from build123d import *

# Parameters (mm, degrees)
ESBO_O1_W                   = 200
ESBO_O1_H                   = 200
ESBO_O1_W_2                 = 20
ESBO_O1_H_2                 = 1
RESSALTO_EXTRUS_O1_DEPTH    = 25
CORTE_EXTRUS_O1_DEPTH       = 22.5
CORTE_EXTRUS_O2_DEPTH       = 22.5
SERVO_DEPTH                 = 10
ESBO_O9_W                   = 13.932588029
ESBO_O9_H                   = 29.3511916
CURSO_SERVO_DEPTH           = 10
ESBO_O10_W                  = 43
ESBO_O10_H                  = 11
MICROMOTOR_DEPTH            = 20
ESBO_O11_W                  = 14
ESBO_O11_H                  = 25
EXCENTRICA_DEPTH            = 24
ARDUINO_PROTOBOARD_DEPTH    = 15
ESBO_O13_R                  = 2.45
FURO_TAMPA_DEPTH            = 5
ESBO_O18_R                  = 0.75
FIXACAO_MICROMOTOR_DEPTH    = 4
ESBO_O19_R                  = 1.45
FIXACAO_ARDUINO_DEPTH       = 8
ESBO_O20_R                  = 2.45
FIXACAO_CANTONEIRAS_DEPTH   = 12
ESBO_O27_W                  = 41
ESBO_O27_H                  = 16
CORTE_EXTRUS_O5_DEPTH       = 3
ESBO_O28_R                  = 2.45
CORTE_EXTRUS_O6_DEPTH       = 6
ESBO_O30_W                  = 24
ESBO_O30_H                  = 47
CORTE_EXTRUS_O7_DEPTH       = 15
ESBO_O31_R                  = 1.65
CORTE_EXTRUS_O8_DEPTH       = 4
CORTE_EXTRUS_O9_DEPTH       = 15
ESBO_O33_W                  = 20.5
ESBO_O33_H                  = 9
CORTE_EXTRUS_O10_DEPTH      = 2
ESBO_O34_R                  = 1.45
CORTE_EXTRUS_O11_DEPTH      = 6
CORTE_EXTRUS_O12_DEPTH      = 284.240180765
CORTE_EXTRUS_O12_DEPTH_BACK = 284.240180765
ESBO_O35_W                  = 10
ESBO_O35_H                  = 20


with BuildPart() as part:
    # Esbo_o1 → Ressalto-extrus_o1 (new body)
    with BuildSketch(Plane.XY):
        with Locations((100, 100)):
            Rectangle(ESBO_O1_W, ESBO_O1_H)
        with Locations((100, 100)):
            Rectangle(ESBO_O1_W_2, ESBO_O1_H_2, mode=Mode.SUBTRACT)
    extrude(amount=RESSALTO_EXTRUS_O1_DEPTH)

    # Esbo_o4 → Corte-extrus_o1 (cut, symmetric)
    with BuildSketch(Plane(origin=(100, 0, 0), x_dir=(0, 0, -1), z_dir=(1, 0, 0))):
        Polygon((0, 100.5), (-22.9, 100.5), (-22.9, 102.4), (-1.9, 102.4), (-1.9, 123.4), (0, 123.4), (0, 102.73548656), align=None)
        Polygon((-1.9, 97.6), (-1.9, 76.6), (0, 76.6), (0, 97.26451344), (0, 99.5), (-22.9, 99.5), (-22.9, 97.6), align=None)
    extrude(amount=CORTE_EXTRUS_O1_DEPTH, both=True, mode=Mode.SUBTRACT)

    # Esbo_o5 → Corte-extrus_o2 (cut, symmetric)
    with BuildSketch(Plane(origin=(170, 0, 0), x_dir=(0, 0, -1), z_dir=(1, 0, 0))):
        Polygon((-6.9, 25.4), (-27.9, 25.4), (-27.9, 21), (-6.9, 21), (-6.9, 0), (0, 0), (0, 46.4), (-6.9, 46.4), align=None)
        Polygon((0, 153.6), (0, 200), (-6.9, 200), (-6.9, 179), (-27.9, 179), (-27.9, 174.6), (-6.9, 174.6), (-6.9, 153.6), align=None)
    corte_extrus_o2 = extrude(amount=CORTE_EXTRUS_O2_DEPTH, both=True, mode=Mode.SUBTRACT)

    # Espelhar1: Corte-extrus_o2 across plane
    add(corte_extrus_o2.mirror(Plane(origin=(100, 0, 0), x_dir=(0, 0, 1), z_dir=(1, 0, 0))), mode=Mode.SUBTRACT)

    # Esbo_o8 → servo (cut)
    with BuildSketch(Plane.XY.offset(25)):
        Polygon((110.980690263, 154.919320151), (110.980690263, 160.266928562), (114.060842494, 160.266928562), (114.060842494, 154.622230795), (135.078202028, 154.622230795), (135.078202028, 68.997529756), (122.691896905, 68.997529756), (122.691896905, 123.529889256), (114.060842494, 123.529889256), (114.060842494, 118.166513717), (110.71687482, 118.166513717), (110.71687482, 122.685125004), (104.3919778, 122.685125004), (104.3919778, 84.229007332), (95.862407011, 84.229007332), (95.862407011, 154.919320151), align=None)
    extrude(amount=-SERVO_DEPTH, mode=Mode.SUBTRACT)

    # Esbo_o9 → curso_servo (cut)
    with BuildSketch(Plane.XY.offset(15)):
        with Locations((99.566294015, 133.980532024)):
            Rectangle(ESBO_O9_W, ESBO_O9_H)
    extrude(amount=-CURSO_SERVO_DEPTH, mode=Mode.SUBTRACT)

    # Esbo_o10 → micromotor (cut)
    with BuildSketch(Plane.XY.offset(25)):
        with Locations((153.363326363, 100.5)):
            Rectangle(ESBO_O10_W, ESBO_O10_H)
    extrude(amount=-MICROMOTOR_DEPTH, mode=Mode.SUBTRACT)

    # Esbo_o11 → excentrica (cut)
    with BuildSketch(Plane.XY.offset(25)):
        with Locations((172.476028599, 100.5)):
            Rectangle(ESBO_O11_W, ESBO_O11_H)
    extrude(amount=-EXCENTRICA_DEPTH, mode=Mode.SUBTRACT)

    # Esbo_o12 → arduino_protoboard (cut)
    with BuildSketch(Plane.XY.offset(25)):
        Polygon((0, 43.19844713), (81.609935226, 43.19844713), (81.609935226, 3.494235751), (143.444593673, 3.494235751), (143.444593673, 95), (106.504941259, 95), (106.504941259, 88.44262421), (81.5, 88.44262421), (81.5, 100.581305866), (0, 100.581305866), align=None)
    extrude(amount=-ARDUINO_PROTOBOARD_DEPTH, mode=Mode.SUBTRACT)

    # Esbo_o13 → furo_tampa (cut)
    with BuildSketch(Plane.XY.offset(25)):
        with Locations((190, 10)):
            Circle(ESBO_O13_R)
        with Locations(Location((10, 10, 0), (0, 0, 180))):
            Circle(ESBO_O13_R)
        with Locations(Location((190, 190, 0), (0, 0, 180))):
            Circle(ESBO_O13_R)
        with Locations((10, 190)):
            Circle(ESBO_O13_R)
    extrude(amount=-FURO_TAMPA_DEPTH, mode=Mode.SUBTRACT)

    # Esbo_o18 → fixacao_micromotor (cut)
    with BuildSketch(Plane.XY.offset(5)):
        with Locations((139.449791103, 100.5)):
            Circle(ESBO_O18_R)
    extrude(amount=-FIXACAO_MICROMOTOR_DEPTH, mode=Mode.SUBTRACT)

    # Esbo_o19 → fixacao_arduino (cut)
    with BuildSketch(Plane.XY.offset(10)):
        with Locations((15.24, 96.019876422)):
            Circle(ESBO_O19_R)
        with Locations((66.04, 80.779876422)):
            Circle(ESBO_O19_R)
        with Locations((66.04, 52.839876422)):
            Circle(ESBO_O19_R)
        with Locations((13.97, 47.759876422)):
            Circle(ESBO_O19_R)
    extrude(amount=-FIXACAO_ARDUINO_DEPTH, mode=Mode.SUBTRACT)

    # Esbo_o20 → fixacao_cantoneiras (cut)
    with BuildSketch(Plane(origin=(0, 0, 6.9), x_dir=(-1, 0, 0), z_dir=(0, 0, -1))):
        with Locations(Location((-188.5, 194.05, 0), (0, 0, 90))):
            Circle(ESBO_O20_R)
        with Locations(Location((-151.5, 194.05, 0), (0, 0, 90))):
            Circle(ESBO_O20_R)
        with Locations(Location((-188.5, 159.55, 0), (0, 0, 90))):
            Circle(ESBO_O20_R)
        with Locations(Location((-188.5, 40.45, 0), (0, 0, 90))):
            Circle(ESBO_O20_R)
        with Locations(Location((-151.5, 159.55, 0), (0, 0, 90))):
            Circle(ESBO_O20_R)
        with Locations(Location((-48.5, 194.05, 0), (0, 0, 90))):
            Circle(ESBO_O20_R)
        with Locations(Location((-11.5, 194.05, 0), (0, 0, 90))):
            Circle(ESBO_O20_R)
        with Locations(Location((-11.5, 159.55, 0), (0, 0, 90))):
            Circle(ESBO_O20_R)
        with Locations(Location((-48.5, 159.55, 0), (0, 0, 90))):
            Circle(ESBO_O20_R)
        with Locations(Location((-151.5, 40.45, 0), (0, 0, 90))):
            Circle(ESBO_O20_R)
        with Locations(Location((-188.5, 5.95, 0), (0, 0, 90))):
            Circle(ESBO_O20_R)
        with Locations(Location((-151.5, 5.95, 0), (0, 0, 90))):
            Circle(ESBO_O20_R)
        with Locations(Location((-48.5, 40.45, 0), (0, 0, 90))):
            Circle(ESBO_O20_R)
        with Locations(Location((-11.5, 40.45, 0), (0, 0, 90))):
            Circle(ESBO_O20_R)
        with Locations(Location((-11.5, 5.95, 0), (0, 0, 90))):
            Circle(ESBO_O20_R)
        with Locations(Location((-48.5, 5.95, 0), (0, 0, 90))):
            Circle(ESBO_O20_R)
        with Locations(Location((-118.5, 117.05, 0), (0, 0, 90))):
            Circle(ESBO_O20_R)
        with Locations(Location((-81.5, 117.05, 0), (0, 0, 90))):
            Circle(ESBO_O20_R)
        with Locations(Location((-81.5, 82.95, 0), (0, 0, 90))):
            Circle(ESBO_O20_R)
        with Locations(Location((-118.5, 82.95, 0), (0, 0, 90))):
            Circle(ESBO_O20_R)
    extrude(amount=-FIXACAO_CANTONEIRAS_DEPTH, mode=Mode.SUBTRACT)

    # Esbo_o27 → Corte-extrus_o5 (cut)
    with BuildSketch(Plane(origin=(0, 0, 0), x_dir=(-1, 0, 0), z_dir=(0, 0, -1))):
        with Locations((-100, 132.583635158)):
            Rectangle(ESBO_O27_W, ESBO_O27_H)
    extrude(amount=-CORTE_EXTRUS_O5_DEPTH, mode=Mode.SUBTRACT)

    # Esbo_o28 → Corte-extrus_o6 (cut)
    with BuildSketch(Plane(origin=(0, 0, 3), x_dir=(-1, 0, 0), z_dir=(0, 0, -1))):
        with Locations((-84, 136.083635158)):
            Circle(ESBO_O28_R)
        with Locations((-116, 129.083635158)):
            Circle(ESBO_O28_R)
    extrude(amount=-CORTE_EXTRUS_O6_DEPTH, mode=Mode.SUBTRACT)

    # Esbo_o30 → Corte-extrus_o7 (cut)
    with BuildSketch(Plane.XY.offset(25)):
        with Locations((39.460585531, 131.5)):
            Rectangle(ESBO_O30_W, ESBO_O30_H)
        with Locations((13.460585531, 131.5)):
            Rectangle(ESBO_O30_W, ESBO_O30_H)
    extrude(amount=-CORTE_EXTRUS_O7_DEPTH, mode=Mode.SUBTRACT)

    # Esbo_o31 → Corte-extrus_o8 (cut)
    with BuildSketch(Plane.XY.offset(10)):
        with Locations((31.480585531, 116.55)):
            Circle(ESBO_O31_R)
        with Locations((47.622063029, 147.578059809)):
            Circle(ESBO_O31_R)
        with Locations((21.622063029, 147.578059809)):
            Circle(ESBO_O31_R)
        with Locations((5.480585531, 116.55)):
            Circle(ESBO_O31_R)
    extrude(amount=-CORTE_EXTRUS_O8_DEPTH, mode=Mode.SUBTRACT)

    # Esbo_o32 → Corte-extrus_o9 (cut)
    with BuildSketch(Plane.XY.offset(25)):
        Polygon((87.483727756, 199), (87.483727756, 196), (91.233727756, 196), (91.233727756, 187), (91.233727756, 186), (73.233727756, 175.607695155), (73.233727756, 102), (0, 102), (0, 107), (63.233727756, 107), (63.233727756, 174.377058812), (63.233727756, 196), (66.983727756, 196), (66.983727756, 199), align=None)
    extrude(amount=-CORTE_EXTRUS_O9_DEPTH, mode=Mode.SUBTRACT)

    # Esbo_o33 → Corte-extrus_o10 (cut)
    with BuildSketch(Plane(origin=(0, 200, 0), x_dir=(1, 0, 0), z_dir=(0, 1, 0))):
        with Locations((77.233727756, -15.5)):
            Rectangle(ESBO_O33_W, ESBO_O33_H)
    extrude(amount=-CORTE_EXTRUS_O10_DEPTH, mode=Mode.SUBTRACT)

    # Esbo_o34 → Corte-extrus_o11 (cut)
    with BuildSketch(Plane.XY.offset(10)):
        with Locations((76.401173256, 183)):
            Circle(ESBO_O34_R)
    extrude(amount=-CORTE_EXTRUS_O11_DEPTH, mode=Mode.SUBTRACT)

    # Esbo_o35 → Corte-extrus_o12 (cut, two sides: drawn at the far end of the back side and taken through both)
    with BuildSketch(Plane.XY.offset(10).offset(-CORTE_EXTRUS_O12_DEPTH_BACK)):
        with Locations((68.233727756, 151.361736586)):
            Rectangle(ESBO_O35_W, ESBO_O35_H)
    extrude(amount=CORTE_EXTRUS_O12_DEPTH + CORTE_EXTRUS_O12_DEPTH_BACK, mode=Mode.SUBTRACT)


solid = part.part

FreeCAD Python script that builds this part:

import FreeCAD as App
import Part
import Sketcher

V = App.Vector
Q = App.Units.Quantity

doc = App.newDocument("Part")
body = doc.addObject("PartDesign::Body", "Body")

sketch1 = body.newObject("Sketcher::SketchObject", "Sketch")
sketch1.AttachmentSupport = (doc.getObject("XY_Plane"), [""])
sketch1.MapMode = "FlatFace"
sketch1.addGeometry([
    Part.LineSegment(V(0, 200, 0), V(0, 0, 0)),
    Part.LineSegment(V(0, 0, 0), V(200, 0, 0)),
    Part.LineSegment(V(200, 0, 0), V(200, 200, 0)),
    Part.LineSegment(V(200, 200, 0), V(0, 200, 0)),
    Part.LineSegment(V(110, 99.5, 0), V(90, 99.5, 0)),
    Part.LineSegment(V(90, 99.5, 0), V(90, 100.5, 0)),
    Part.LineSegment(V(90, 100.5, 0), V(110, 100.5, 0)),
    Part.LineSegment(V(110, 100.5, 0), V(110, 99.5, 0)),
], False)
sketch1.addConstraint([
    Sketcher.Constraint("Coincident", 0, 2, 1, 1),
    Sketcher.Constraint("Coincident", 1, 2, 2, 1),
    Sketcher.Constraint("Coincident", 2, 2, 3, 1),
    Sketcher.Constraint("Coincident", 3, 2, 0, 1),
    Sketcher.Constraint("Coincident", 4, 2, 5, 1),
    Sketcher.Constraint("Coincident", 5, 2, 6, 1),
    Sketcher.Constraint("Coincident", 6, 2, 7, 1),
    Sketcher.Constraint("Coincident", 7, 2, 4, 1),
    Sketcher.Constraint("Vertical", 0),
    Sketcher.Constraint("Horizontal", 1),
    Sketcher.Constraint("Vertical", 2),
    Sketcher.Constraint("Horizontal", 3),
    Sketcher.Constraint("Horizontal", 4),
    Sketcher.Constraint("Vertical", 5),
    Sketcher.Constraint("Horizontal", 6),
    Sketcher.Constraint("Vertical", 7),
    Sketcher.Constraint("Coincident", 0, 2, -1, 1),
    Sketcher.Constraint("Equal", 3, 0),
    Sketcher.Constraint("DistanceX", 1, 1, 1, 2, 200.0),
    Sketcher.Constraint("DistanceX", 4, 2, 4, 1, 20.0),
    Sketcher.Constraint("DistanceY", 5, 1, 5, 2, 1.0),
    Sketcher.Constraint("DistanceX", -1, 1, 4, 2, 90.0),
    Sketcher.Constraint("DistanceY", -1, 1, 4, 2, 99.5),
])
pad1 = body.newObject("PartDesign::Pad", "Pad")
pad1.Profile = sketch1
pad1.Length = 25

sketch2 = body.newObject("Sketcher::SketchObject", "Sketch001")
sketch2.AttachmentSupport = (doc.getObject("YZ_Plane"), [""])
sketch2.MapMode = "FlatFace"
sketch2.AttachmentOffset = App.Placement(V(0, 0, 100), App.Rotation())
sketch2.addGeometry([
    Part.LineSegment(V(100.5, 22.9, 0), V(100.5, 0, 0)),
    Part.LineSegment(V(100.5, 0, 0), V(123.4, 0, 0)),
    Part.LineSegment(V(123.4, 0, 0), V(123.4, 1.9, 0)),
    Part.LineSegment(V(123.4, 1.9, 0), V(102.4, 1.9, 0)),
    Part.LineSegment(V(102.4, 1.9, 0), V(102.4, 22.9, 0)),
    Part.LineSegment(V(102.4, 22.9, 0), V(100.5, 22.9, 0)),
    Part.LineSegment(V(97.6, 1.9, 0), V(76.6, 1.9, 0)),
    Part.LineSegment(V(76.6, 1.9, 0), V(76.6, 0, 0)),
    Part.LineSegment(V(76.6, 0, 0), V(99.5, 0, 0)),
    Part.LineSegment(V(99.5, 0, 0), V(99.5, 22.9, 0)),
    Part.LineSegment(V(99.5, 22.9, 0), V(97.6, 22.9, 0)),
    Part.LineSegment(V(97.6, 22.9, 0), V(97.6, 1.9, 0)),
], False)
sketch2.addConstraint([
    Sketcher.Constraint("Coincident", 0, 2, 1, 1),
    Sketcher.Constraint("Coincident", 1, 2, 2, 1),
    Sketcher.Constraint("Coincident", 2, 2, 3, 1),
    Sketcher.Constraint("Coincident", 3, 2, 4, 1),
    Sketcher.Constraint("Coincident", 4, 2, 5, 1),
    Sketcher.Constraint("Coincident", 5, 2, 0, 1),
    Sketcher.Constraint("Coincident", 6, 2, 7, 1),
    Sketcher.Constraint("Coincident", 7, 2, 8, 1),
    Sketcher.Constraint("Coincident", 8, 2, 9, 1),
    Sketcher.Constraint("Coincident", 9, 2, 10, 1),
    Sketcher.Constraint("Coincident", 10, 2, 11, 1),
    Sketcher.Constraint("Coincident", 11, 2, 6, 1),
    Sketcher.Constraint("Vertical", 0),
    Sketcher.Constraint("Horizontal", 1),
    Sketcher.Constraint("Vertical", 2),
    Sketcher.Constraint("Horizontal", 3),
    Sketcher.Constraint("Vertical", 4),
    Sketcher.Constraint("Horizontal", 5),
    Sketcher.Constraint("Horizontal", 6),
    Sketcher.Constraint("Vertical", 7),
    Sketcher.Constraint("Horizontal", 8),
    Sketcher.Constraint("Vertical", 9),
    Sketcher.Constraint("Horizontal", 10),
    Sketcher.Constraint("Vertical", 11),
    Sketcher.Constraint("PointOnObject", 0, 2, -1),
    Sketcher.Constraint("PointOnObject", 7, 2, -1),
    Sketcher.Constraint("Horizontal", 3, 2, 6, 2),
    Sketcher.Constraint("Horizontal", 5, 2, 9, 2),
    Sketcher.Constraint("Equal", 3, 6),
    Sketcher.Constraint("Equal", 1, 8),
    Sketcher.Constraint("Equal", 8, 0),
    Sketcher.Constraint("Equal", 10, 2),
    Sketcher.Constraint("DistanceX", 3, 2, 3, 1, 21.0),
    Sketcher.Constraint("DistanceX", 1, 1, 1, 2, 22.9),
    Sketcher.Constraint("DistanceX", 8, 2, 0, 2, 1.0),
    Sketcher.Constraint("DistanceX", -1, 1, 0, 2, 100.5),
])
pocket1 = body.newObject("PartDesign::Pocket", "Pocket")
pocket1.Profile = sketch2
pocket1.Length = 45
pocket1.Midplane = True

sketch3 = body.newObject("Sketcher::SketchObject", "Sketch002")
sketch3.AttachmentSupport = (doc.getObject("YZ_Plane"), [""])
sketch3.MapMode = "FlatFace"
sketch3.AttachmentOffset = App.Placement(V(0, 0, 170), App.Rotation())
sketch3.addGeometry([
    Part.LineSegment(V(25.4, 6.9, 0), V(25.4, 27.9, 0)),
    Part.LineSegment(V(25.4, 27.9, 0), V(21, 27.9, 0)),
    Part.LineSegment(V(21, 27.9, 0), V(21, 6.9, 0)),
    Part.LineSegment(V(21, 6.9, 0), V(0, 6.9, 0)),
    Part.LineSegment(V(0, 6.9, 0), V(0, 0, 0)),
    Part.LineSegment(V(0, 0, 0), V(46.4, 0, 0)),
    Part.LineSegment(V(46.4, 0, 0), V(46.4, 6.9, 0)),
    Part.LineSegment(V(46.4, 6.9, 0), V(25.4, 6.9, 0)),
    Part.LineSegment(V(153.6, 0, 0), V(200, 0, 0)),
    Part.LineSegment(V(200, 0, 0), V(200, 6.9, 0)),
    Part.LineSegment(V(200, 6.9, 0), V(179, 6.9, 0)),
    Part.LineSegment(V(179, 6.9, 0), V(179, 27.9, 0)),
    Part.LineSegment(V(179, 27.9, 0), V(174.6, 27.9, 0)),
    Part.LineSegment(V(174.6, 27.9, 0), V(174.6, 6.9, 0)),
    Part.LineSegment(V(174.6, 6.9, 0), V(153.6, 6.9, 0)),
    Part.LineSegment(V(153.6, 6.9, 0), V(153.6, 0, 0)),
], False)
sketch3.addConstraint([
    Sketcher.Constraint("Coincident", 0, 2, 1, 1),
    Sketcher.Constraint("Coincident", 1, 2, 2, 1),
    Sketcher.Constraint("Coincident", 2, 2, 3, 1),
    Sketcher.Constraint("Coincident", 3, 2, 4, 1),
    Sketcher.Constraint("Coincident", 4, 2, 5, 1),
    Sketcher.Constraint("Coincident", 5, 2, 6, 1),
    Sketcher.Constraint("Coincident", 6, 2, 7, 1),
    Sketcher.Constraint("Coincident", 7, 2, 0, 1),
    Sketcher.Constraint("Coincident", 8, 2, 9, 1),
    Sketcher.Constraint("Coincident", 9, 2, 10, 1),
    Sketcher.Constraint("Coincident", 10, 2, 11, 1),
    Sketcher.Constraint("Coincident", 11, 2, 12, 1),
    Sketcher.Constraint("Coincident", 12, 2, 13, 1),
    Sketcher.Constraint("Coincident", 13, 2, 14, 1),
    Sketcher.Constraint("Coincident", 14, 2, 15, 1),
    Sketcher.Constraint("Coincident", 15, 2, 8, 1),
    Sketcher.Constraint("Vertical", 0),
    Sketcher.Constraint("Horizontal", 1),
    Sketcher.Constraint("Vertical", 2),
    Sketcher.Constraint("Horizontal", 3),
    Sketcher.Constraint("Vertical", 4),
    Sketcher.Constraint("Horizontal", 5),
    Sketcher.Constraint("Vertical", 6),
    Sketcher.Constraint("Horizontal", 7),
    Sketcher.Constraint("Horizontal", 8),
    Sketcher.Constraint("Vertical", 9),
    Sketcher.Constraint("Horizontal", 10),
    Sketcher.Constraint("Vertical", 11),
    Sketcher.Constraint("Horizontal", 12),
    Sketcher.Constraint("Vertical", 13),
    Sketcher.Constraint("Horizontal", 14),
    Sketcher.Constraint("Vertical", 15),
    Sketcher.Constraint("Coincident", 4, 2, -1, 1),
    Sketcher.Constraint("PointOnObject", 8, 2, -1),
    Sketcher.Constraint("Horizontal", 3, 2, 6, 2),
    Sketcher.Constraint("Horizontal", 7, 2, 9, 2),
    Sketcher.Constraint("Horizontal", 1, 2, 11, 2),
    Sketcher.Constraint("Horizontal", 10, 2, 13, 2),
    Sketcher.Constraint("Equal", 3, 7),
    Sketcher.Constraint("Equal", 5, 8),
    Sketcher.Constraint("Equal", 7, 10),
    Sketcher.Constraint("Equal", 1, 12),
    Sketcher.Constraint("Equal", 14, 0),
    Sketcher.Constraint("DistanceX", 3, 2, 3, 1, 21.0),
    Sketcher.Constraint("DistanceX", 1, 2, 1, 1, 4.4),
    Sketcher.Constraint("DistanceY", 4, 2, 4, 1, 6.9),
    Sketcher.Constraint("DistanceX", -1, 1, 8, 2, 200.0),
])
pocket2 = body.newObject("PartDesign::Pocket", "Pocket001")
pocket2.Profile = sketch3
pocket2.Length = 45
pocket2.Midplane = True
doc.recompute()

datumplane = body.newObject("PartDesign::Plane", "DatumPlane")
datumplane.AttachmentSupport = (doc.getObject("YZ_Plane"), [""])
datumplane.MapMode = "FlatFace"
datumplane.AttachmentOffset = App.Placement(V(0, 0, 100), App.Rotation())
mirrored = body.newObject("PartDesign::Mirrored", "Mirrored")
mirrored.Originals = [pocket2]
mirrored.MirrorPlane = (datumplane, [""])
body.Tip = mirrored

sketch4 = body.newObject("Sketcher::SketchObject", "Sketch003")
sketch4.AttachmentSupport = (doc.getObject("XY_Plane"), [""])
sketch4.MapMode = "FlatFace"
sketch4.AttachmentOffset = App.Placement(V(0, 0, 25), App.Rotation())
sketch4.addGeometry([
    Part.LineSegment(V(110.98069, 160.266929, 0), V(110.98069, 154.91932, 0)),
    Part.LineSegment(V(110.98069, 154.91932, 0), V(95.862407, 154.91932, 0)),
    Part.LineSegment(V(95.862407, 154.91932, 0), V(95.862407, 84.229007, 0)),
    Part.LineSegment(V(95.862407, 84.229007, 0), V(104.391978, 84.229007, 0)),
    Part.LineSegment(V(104.391978, 84.229007, 0), V(104.391978, 122.685125, 0)),
    Part.LineSegment(V(104.391978, 122.685125, 0), V(110.716875, 122.685125, 0)),
    Part.LineSegment(V(110.716875, 122.685125, 0), V(110.716875, 118.166514, 0)),
    Part.LineSegment(V(110.716875, 118.166514, 0), V(114.060842, 118.166514, 0)),
    Part.LineSegment(V(114.060842, 118.166514, 0), V(114.060842, 123.529889, 0)),
    Part.LineSegment(V(114.060842, 123.529889, 0), V(122.691897, 123.529889, 0)),
    Part.LineSegment(V(122.691897, 123.529889, 0), V(122.691897, 68.99753, 0)),
    Part.LineSegment(V(122.691897, 68.99753, 0), V(135.078202, 68.99753, 0)),
    Part.LineSegment(V(135.078202, 68.99753, 0), V(135.078202, 154.622231, 0)),
    Part.LineSegment(V(135.078202, 154.622231, 0), V(114.060842, 154.622231, 0)),
    Part.LineSegment(V(114.060842, 154.622231, 0), V(114.060842, 160.266929, 0)),
    Part.LineSegment(V(114.060842, 160.266929, 0), V(110.98069, 160.266929, 0)),
], False)
sketch4.addConstraint([
    Sketcher.Constraint("Coincident", 0, 2, 1, 1),
    Sketcher.Constraint("Coincident", 1, 2, 2, 1),
    Sketcher.Constraint("Coincident", 2, 2, 3, 1),
    Sketcher.Constraint("Coincident", 3, 2, 4, 1),
    Sketcher.Constraint("Coincident", 4, 2, 5, 1),
    Sketcher.Constraint("Coincident", 5, 2, 6, 1),
    Sketcher.Constraint("Coincident", 6, 2, 7, 1),
    Sketcher.Constraint("Coincident", 7, 2, 8, 1),
    Sketcher.Constraint("Coincident", 8, 2, 9, 1),
    Sketcher.Constraint("Coincident", 9, 2, 10, 1),
    Sketcher.Constraint("Coincident", 10, 2, 11, 1),
    Sketcher.Constraint("Coincident", 11, 2, 12, 1),
    Sketcher.Constraint("Coincident", 12, 2, 13, 1),
    Sketcher.Constraint("Coincident", 13, 2, 14, 1),
    Sketcher.Constraint("Coincident", 14, 2, 15, 1),
    Sketcher.Constraint("Coincident", 15, 2, 0, 1),
    Sketcher.Constraint("Vertical", 0),
    Sketcher.Constraint("Horizontal", 1),
    Sketcher.Constraint("Vertical", 2),
    Sketcher.Constraint("Horizontal", 3),
    Sketcher.Constraint("Vertical", 4),
    Sketcher.Constraint("Horizontal", 5),
    Sketcher.Constraint("Vertical", 6),
    Sketcher.Constraint("Horizontal", 7),
    Sketcher.Constraint("Vertical", 8),
    Sketcher.Constraint("Horizontal", 9),
    Sketcher.Constraint("Vertical", 10),
    Sketcher.Constraint("Horizontal", 11),
    Sketcher.Constraint("Vertical", 12),
    Sketcher.Constraint("Horizontal", 13),
    Sketcher.Constraint("Vertical", 14),
    Sketcher.Constraint("Horizontal", 15),
    Sketcher.Constraint("Vertical", 8, 2, 13, 2),
    Sketcher.Constraint("DistanceY", 12, 1, 12, 2, 85.624701),
    Sketcher.Constraint("DistanceX", 3, 1, 3, 2, 8.529571),
    Sketcher.Constraint("DistanceX", 13, 2, 13, 1, 21.01736),
    Sketcher.Constraint("DistanceY", 0, 2, 0, 1, 5.347608),
    Sketcher.Constraint("DistanceY", 6, 2, 6, 1, 4.518611),
    Sketcher.Constraint("DistanceY", 10, 2, 10, 1, 54.532359),
    Sketcher.Constraint("DistanceX", 1, 2, 1, 1, 15.118283),
    Sketcher.Constraint("DistanceX", 5, 1, 5, 2, 6.324897),
    Sketcher.Constraint("DistanceX", 7, 1, 7, 2, 3.343968),
    Sketcher.Constraint("DistanceX", 9, 1, 9, 2, 8.631054),
    Sketcher.Constraint("DistanceY", 2, 2, 2, 1, 70.690313),
    Sketcher.Constraint("DistanceY", 4, 1, 4, 2, 38.456118),
    Sketcher.Constraint("DistanceY", 8, 1, 8, 2, 5.363376),
    Sketcher.Constraint("DistanceX", -1, 1, 0, 2, 110.98069),
    Sketcher.Constraint("DistanceY", -1, 1, 0, 2, 154.91932),
])
pocket3 = body.newObject("PartDesign::Pocket", "Pocket002")
pocket3.Profile = sketch4
pocket3.Length = 10

sketch5 = body.newObject("Sketcher::SketchObject", "Sketch004")
sketch5.AttachmentSupport = (doc.getObject("XY_Plane"), [""])
sketch5.MapMode = "FlatFace"
sketch5.AttachmentOffset = App.Placement(V(0, 0, 15), App.Rotation())
sketch5.addGeometry([
    Part.LineSegment(V(92.6, 148.656128, 0), V(92.6, 119.304936, 0)),
    Part.LineSegment(V(92.6, 119.304936, 0), V(106.532588, 119.304936, 0)),
    Part.LineSegment(V(106.532588, 119.304936, 0), V(106.532588, 148.656128, 0)),
    Part.LineSegment(V(106.532588, 148.656128, 0), V(92.6, 148.656128, 0)),
], False)
sketch5.addConstraint([
    Sketcher.Constraint("Coincident", 0, 2, 1, 1),
    Sketcher.Constraint("Coincident", 1, 2, 2, 1),
    Sketcher.Constraint("Coincident", 2, 2, 3, 1),
    Sketcher.Constraint("Coincident", 3, 2, 0, 1),
    Sketcher.Constraint("Vertical", 0),
    Sketcher.Constraint("Horizontal", 1),
    Sketcher.Constraint("Vertical", 2),
    Sketcher.Constraint("Horizontal", 3),
    Sketcher.Constraint("DistanceX", -1, 1, 0, 2, 92.6),
    Sketcher.Constraint("DistanceX", 1, 1, 1, 2, 13.932588),
    Sketcher.Constraint("DistanceY", 0, 2, 0, 1, 29.351192),
    Sketcher.Constraint("DistanceY", -1, 1, 0, 2, 119.304936),
])
pocket4 = body.newObject("PartDesign::Pocket", "Pocket003")
pocket4.Profile = sketch5
pocket4.Length = 10

sketch6 = body.newObject("Sketcher::SketchObject", "Sketch005")
sketch6.AttachmentSupport = (doc.getObject("XY_Plane"), [""])
sketch6.MapMode = "FlatFace"
sketch6.AttachmentOffset = App.Placement(V(0, 0, 25), App.Rotation())
sketch6.addGeometry([
    Part.LineSegment(V(131.863326, 106, 0), V(131.863326, 95, 0)),
    Part.LineSegment(V(131.863326, 95, 0), V(174.863326, 95, 0)),
    Part.LineSegment(V(174.863326, 95, 0), V(174.863326, 106, 0)),
    Part.LineSegment(V(174.863326, 106, 0), V(131.863326, 106, 0)),
], False)
sketch6.addConstraint([
    Sketcher.Constraint("Coincident", 0, 2, 1, 1),
    Sketcher.Constraint("Coincident", 1, 2, 2, 1),
    Sketcher.Constraint("Coincident", 2, 2, 3, 1),
    Sketcher.Constraint("Coincident", 3, 2, 0, 1),
    Sketcher.Constraint("Vertical", 0),
    Sketcher.Constraint("Horizontal", 1),
    Sketcher.Constraint("Vertical", 2),
    Sketcher.Constraint("Horizontal", 3),
    Sketcher.Constraint("DistanceX", 1, 1, 1, 2, 43.0),
    Sketcher.Constraint("DistanceY", 0, 2, 0, 1, 11.0),
    Sketcher.Constraint("DistanceY", -1, 1, 0, 2, 95.0),
    Sketcher.Constraint("DistanceX", -1, 1, 0, 2, 131.863326),
])
pocket5 = body.newObject("PartDesign::Pocket", "Pocket004")
pocket5.Profile = sketch6
pocket5.Length = 20

sketch7 = body.newObject("Sketcher::SketchObject", "Sketch006")
sketch7.AttachmentSupport = (doc.getObject("XY_Plane"), [""])
sketch7.MapMode = "FlatFace"
sketch7.AttachmentOffset = App.Placement(V(0, 0, 25), App.Rotation())
sketch7.addGeometry([
    Part.LineSegment(V(165.476029, 113, 0), V(165.476029, 88, 0)),
    Part.LineSegment(V(165.476029, 88, 0), V(179.476029, 88, 0)),
    Part.LineSegment(V(179.476029, 88, 0), V(179.476029, 113, 0)),
    Part.LineSegment(V(179.476029, 113, 0), V(165.476029, 113, 0)),
], False)
sketch7.addConstraint([
    Sketcher.Constraint("Coincident", 0, 2, 1, 1),
    Sketcher.Constraint("Coincident", 1, 2, 2, 1),
    Sketcher.Constraint("Coincident", 2, 2, 3, 1),
    Sketcher.Constraint("Coincident", 3, 2, 0, 1),
    Sketcher.Constraint("Vertical", 0),
    Sketcher.Constraint("Horizontal", 1),
    Sketcher.Constraint("Vertical", 2),
    Sketcher.Constraint("Horizontal", 3),
    Sketcher.Constraint("DistanceX", 1, 1, 1, 2, 14.0),
    Sketcher.Constraint("DistanceY", 0, 2, 0, 1, 25.0),
    Sketcher.Constraint("DistanceY", -1, 1, 0, 2, 88.0),
    Sketcher.Constraint("DistanceX", -1, 1, 0, 2, 165.476029),
])
pocket6 = body.newObject("PartDesign::Pocket", "Pocket005")
pocket6.Profile = sketch7
pocket6.Length = 24

sketch8 = body.newObject("Sketcher::SketchObject", "Sketch007")
sketch8.AttachmentSupport = (doc.getObject("XY_Plane"), [""])
sketch8.MapMode = "FlatFace"
sketch8.AttachmentOffset = App.Placement(V(0, 0, 25), App.Rotation())
sketch8.addGeometry([
    Part.LineSegment(V(0, 43.198447, 0), V(81.609935, 43.198447, 0)),
    Part.LineSegment(V(81.609935, 43.198447, 0), V(81.609935, 3.494236, 0)),
    Part.LineSegment(V(81.609935, 3.494236, 0), V(143.444594, 3.494236, 0)),
    Part.LineSegment(V(143.444594, 3.494236, 0), V(143.444594, 95, 0)),
    Part.LineSegment(V(143.444594, 95, 0), V(106.504941, 95, 0)),
    Part.LineSegment(V(106.504941, 95, 0), V(106.504941, 88.442624, 0)),
    Part.LineSegment(V(106.504941, 88.442624, 0), V(81.5, 88.442624, 0)),
    Part.LineSegment(V(81.5, 88.442624, 0), V(81.5, 100.581306, 0)),
    Part.LineSegment(V(81.5, 100.581306, 0), V(0, 100.581306, 0)),
    Part.LineSegment(V(0, 100.581306, 0), V(0, 43.198447, 0)),
], False)
sketch8.addConstraint([
    Sketcher.Constraint("Coincident", 0, 2, 1, 1),
    Sketcher.Constraint("Coincident", 1, 2, 2, 1),
    Sketcher.Constraint("Coincident", 2, 2, 3, 1),
    Sketcher.Constraint("Coincident", 3, 2, 4, 1),
    Sketcher.Constraint("Coincident", 4, 2, 5, 1),
    Sketcher.Constraint("Coincident", 5, 2, 6, 1),
    Sketcher.Constraint("Coincident", 6, 2, 7, 1),
    Sketcher.Constraint("Coincident", 7, 2, 8, 1),
    Sketcher.Constraint("Coincident", 8, 2, 9, 1),
    Sketcher.Constraint("Coincident", 9, 2, 0, 1),
    Sketcher.Constraint("Horizontal", 0),
    Sketcher.Constraint("Vertical", 1),
    Sketcher.Constraint("Horizontal", 2),
    Sketcher.Constraint("Vertical", 3),
    Sketcher.Constraint("Horizontal", 4),
    Sketcher.Constraint("Vertical", 5),
    Sketcher.Constraint("Horizontal", 6),
    Sketcher.Constraint("Vertical", 7),
    Sketcher.Constraint("Horizontal", 8),
    Sketcher.Constraint("Vertical", 9),
    Sketcher.Constraint("PointOnObject", 8, 2, -2),
    Sketcher.Constraint("DistanceX", 8, 2, 8, 1, 81.5),
    Sketcher.Constraint("DistanceY", -1, 1, 3, 2, 95.0),
    Sketcher.Constraint("DistanceX", 2, 1, 2, 2, 61.834658),
    Sketcher.Constraint("DistanceX", 6, 2, 6, 1, 25.004941),
    Sketcher.Constraint("DistanceY", 1, 2, 1, 1, 39.704211),
    Sketcher.Constraint("DistanceY", 7, 1, 7, 2, 12.138682),
    Sketcher.Constraint("DistanceY", 9, 2, 9, 1, 57.382859),
    Sketcher.Constraint("DistanceX", 0, 1, 0, 2, 81.609935),
    Sketcher.Constraint("DistanceY", 3, 1, 3, 2, 91.505764),
])
pocket7 = body.newObject("PartDesign::Pocket", "Pocket006")
pocket7.Profile = sketch8
pocket7.Length = 15

sketch9 = body.newObject("Sketcher::SketchObject", "Sketch008")
sketch9.AttachmentSupport = (doc.getObject("XY_Plane"), [""])
sketch9.MapMode = "FlatFace"
sketch9.AttachmentOffset = App.Placement(V(0, 0, 25), App.Rotation())
sketch9.addGeometry([
    Part.Circle(V(190, 10, 0), V(0, 0, 1), 2.45),
    Part.Circle(V(10, 10, 0), V(0, 0, 1), 2.45),
    Part.Circle(V(190, 190, 0), V(0, 0, 1), 2.45),
    Part.Circle(V(10, 190, 0), V(0, 0, 1), 2.45),
], False)
sketch9.addConstraint([
    Sketcher.Constraint("Equal", 0, 1),
    Sketcher.Constraint("Equal", 1, 2),
    Sketcher.Constraint("Equal", 2, 3),
    Sketcher.Constraint("Horizontal", 0, 3, 1, 3),
    Sketcher.Constraint("Horizontal", 2, 3, 3, 3),
    Sketcher.Constraint("Vertical", 0, 3, 2, 3),
    Sketcher.Constraint("Vertical", 1, 3, 3, 3),
    Sketcher.Constraint("Diameter", 0, 4.9),
    Sketcher.Constraint("DistanceX", -1, 1, 0, 3, 190.0),
    Sketcher.Constraint("DistanceY", -1, 1, 0, 3, 10.0),
    Sketcher.Constraint("DistanceX", -1, 1, 1, 3, 10.0),
    Sketcher.Constraint("DistanceY", -1, 1, 2, 3, 190.0),
])
pocket8 = body.newObject("PartDesign::Pocket", "Pocket007")
pocket8.Profile = sketch9
pocket8.Length = 5

sketch10 = body.newObject("Sketcher::SketchObject", "Sketch009")
sketch10.AttachmentSupport = (doc.getObject("XY_Plane"), [""])
sketch10.MapMode = "FlatFace"
sketch10.AttachmentOffset = App.Placement(V(0, 0, 5), App.Rotation())
sketch10.addGeometry(Part.Circle(V(139.449791, 100.5, 0), V(0, 0, 1), 0.75), False)
sketch10.addConstraint([
    Sketcher.Constraint("Diameter", 0, 1.5),
    Sketcher.Constraint("DistanceY", -1, 1, 0, 3, 100.5),
    Sketcher.Constraint("DistanceX", -1, 1, 0, 3, 139.449791),
])
pocket9 = body.newObject("PartDesign::Pocket", "Pocket008")
pocket9.Profile = sketch10
pocket9.Length = 4

sketch11 = body.newObject("Sketcher::SketchObject", "Sketch010")
sketch11.AttachmentSupport = (doc.getObject("XY_Plane"), [""])
sketch11.MapMode = "FlatFace"
sketch11.AttachmentOffset = App.Placement(V(0, 0, 10), App.Rotation())
sketch11.addGeometry([
    Part.Circle(V(15.24, 96.019876, 0), V(0, 0, 1), 1.45),
    Part.Circle(V(66.04, 80.779876, 0), V(0, 0, 1), 1.45),
    Part.Circle(V(66.04, 52.839876, 0), V(0, 0, 1), 1.45),
    Part.Circle(V(13.97, 47.759876, 0), V(0, 0, 1), 1.45),
], False)
sketch11.addConstraint([
    Sketcher.Constraint("Equal", 0, 1),
    Sketcher.Constraint("Equal", 1, 2),
    Sketcher.Constraint("Equal", 2, 3),
    Sketcher.Constraint("Vertical", 1, 3, 2, 3),
    Sketcher.Constraint("Diameter", 0, 2.9),
    Sketcher.Constraint("DistanceX", 0, 3, 1, 3, 50.8),
    Sketcher.Constraint("DistanceX", -1, 1, 0, 3, 15.24),
    Sketcher.Constraint("DistanceX", -1, 1, 3, 3, 13.97),
    Sketcher.Constraint("DistanceY", 1, 3, 0, 3, 15.24),
    Sketcher.Constraint("DistanceY", 2, 3, 1, 3, 27.94),
    Sketcher.Constraint("DistanceY", 3, 3, 0, 3, 48.26),
    Sketcher.Constraint("DistanceY", -1, 1, 0, 3, 96.019876),
])
pocket10 = body.newObject("PartDesign::Pocket", "Pocket009")
pocket10.Profile = sketch11
pocket10.Length = 8

sketch12 = body.newObject("Sketcher::SketchObject", "Sketch011")
sketch12.AttachmentSupport = (doc.getObject("XY_Plane"), [""])
sketch12.MapMode = "FlatFace"
sketch12.AttachmentOffset = App.Placement(V(0, 0, 6.9), App.Rotation())
sketch12.addGeometry([
    Part.Circle(V(188.5, 194.05, 0), V(0, 0, 1), 2.45),
    Part.Circle(V(151.5, 194.05, 0), V(0, 0, 1), 2.45),
    Part.Circle(V(188.5, 159.55, 0), V(0, 0, 1), 2.45),
    Part.Circle(V(188.5, 40.45, 0), V(0, 0, 1), 2.45),
    Part.Circle(V(151.5, 159.55, 0), V(0, 0, 1), 2.45),
    Part.Circle(V(48.5, 194.05, 0), V(0, 0, 1), 2.45),
    Part.Circle(V(11.5, 194.05, 0), V(0, 0, 1), 2.45),
    Part.Circle(V(11.5, 159.55, 0), V(0, 0, 1), 2.45),
    Part.Circle(V(48.5, 159.55, 0), V(0, 0, 1), 2.45),
    Part.Circle(V(151.5, 40.45, 0), V(0, 0, 1), 2.45),
    Part.Circle(V(188.5, 5.95, 0), V(0, 0, 1), 2.45),
    Part.Circle(V(151.5, 5.95, 0), V(0, 0, 1), 2.45),
    Part.Circle(V(48.5, 40.45, 0), V(0, 0, 1), 2.45),
    Part.Circle(V(11.5, 40.45, 0), V(0, 0, 1), 2.45),
    Part.Circle(V(11.5, 5.95, 0), V(0, 0, 1), 2.45),
    Part.Circle(V(48.5, 5.95, 0), V(0, 0, 1), 2.45),
    Part.Circle(V(118.5, 117.05, 0), V(0, 0, 1), 2.45),
    Part.Circle(V(81.5, 117.05, 0), V(0, 0, 1), 2.45),
    Part.Circle(V(81.5, 82.95, 0), V(0, 0, 1), 2.45),
    Part.Circle(V(118.5, 82.95, 0), V(0, 0, 1), 2.45),
], False)
sketch12.addConstraint([
    Sketcher.Constraint("Equal", 0, 1),
    Sketcher.Constraint("Equal", 1, 2),
    Sketcher.Constraint("Equal", 2, 3),
    Sketcher.Constraint("Equal", 3, 4),
    Sketcher.Constraint("Equal", 4, 5),
    Sketcher.Constraint("Equal", 5, 6),
    Sketcher.Constraint("Equal", 6, 7),
    Sketcher.Constraint("Equal", 7, 8),
    Sketcher.Constraint("Equal", 8, 9),
    Sketcher.Constraint("Equal", 9, 10),
    Sketcher.Constraint("Equal", 10, 11),
    Sketcher.Constraint("Equal", 11, 12),
    Sketcher.Constraint("Equal", 12, 13),
    Sketcher.Constraint("Equal", 13, 14),
    Sketcher.Constraint("Equal", 14, 15),
    Sketcher.Constraint("Equal", 15, 16),
    Sketcher.Constraint("Equal", 16, 17),
    Sketcher.Constraint("Equal", 17, 18),
    Sketcher.Constraint("Equal", 18, 19),
    Sketcher.Constraint("Horizontal", 0, 3, 1, 3),
    Sketcher.Constraint("Horizontal", 2, 3, 4, 3),
    Sketcher.Constraint("Horizontal", 1, 3, 5, 3),
    Sketcher.Constraint("Horizontal", 5, 3, 6, 3),
    Sketcher.Constraint("Horizontal", 4, 3, 7, 3),
    Sketcher.Constraint("Horizontal", 7, 3, 8, 3),
    Sketcher.Constraint("Horizontal", 3, 3, 9, 3),
    Sketcher.Constraint("Horizontal", 10, 3, 11, 3),
    Sketcher.Constraint("Horizontal", 9, 3, 12, 3),
    Sketcher.Constraint("Horizontal", 12, 3, 13, 3),
    Sketcher.Constraint("Horizontal", 11, 3, 14, 3),
    Sketcher.Constraint("Horizontal", 14, 3, 15, 3),
    Sketcher.Constraint("Horizontal", 16, 3, 17, 3),
    Sketcher.Constraint("Horizontal", 18, 3, 19, 3),
    Sketcher.Constraint("Vertical", 0, 3, 2, 3),
    Sketcher.Constraint("Vertical", 2, 3, 3, 3),
    Sketcher.Constraint("Vertical", 1, 3, 4, 3),
    Sketcher.Constraint("Vertical", 6, 3, 7, 3),
    Sketcher.Constraint("Vertical", 5, 3, 8, 3),
    Sketcher.Constraint("Vertical", 4, 3, 9, 3),
    Sketcher.Constraint("Vertical", 3, 3, 10, 3),
    Sketcher.Constraint("Vertical", 9, 3, 11, 3),
    Sketcher.Constraint("Vertical", 8, 3, 12, 3),
    Sketcher.Constraint("Vertical", 7, 3, 13, 3),
    Sketcher.Constraint("Vertical", 13, 3, 14, 3),
    Sketcher.Constraint("Vertical", 12, 3, 15, 3),
    Sketcher.Constraint("Vertical", 17, 3, 18, 3),
    Sketcher.Constraint("Vertical", 16, 3, 19, 3),
    Sketcher.Constraint("Diameter", 0, 4.9),
    Sketcher.Constraint("DistanceX", 1, 3, 0, 3, 37.0),
    Sketcher.Constraint("DistanceX", 5, 3, 1, 3, 103.0),
    Sketcher.Constraint("DistanceX", 6, 3, 5, 3, 37.0),
    Sketcher.Constraint("DistanceX", 16, 3, 4, 3, 33.0),
    Sketcher.Constraint("DistanceY", 16, 3, 1, 3, 77.0),
    Sketcher.Constraint("DistanceX", 17, 3, 16, 3, 37.0),
    Sketcher.Constraint("DistanceX", -1, 1, 0, 3, 188.5),
    Sketcher.Constraint("DistanceY", 2, 3, 0, 3, 34.5),
    Sketcher.Constraint("DistanceY", 3, 3, 2, 3, 119.1),
    Sketcher.Constraint("DistanceY", 10, 3, 3, 3, 34.5),
    Sketcher.Constraint("DistanceY", 18, 3, 17, 3, 34.1),
    Sketcher.Constraint("DistanceY", -1, 1, 0, 3, 194.05),
])
pocket11 = body.newObject("PartDesign::Pocket", "Pocket010")
pocket11.Profile = sketch12
pocket11.Length = 12
pocket11.Reversed = True

sketch13 = body.newObject("Sketcher::SketchObject", "Sketch012")
sketch13.AttachmentSupport = (doc.getObject("XY_Plane"), [""])
sketch13.MapMode = "FlatFace"
sketch13.addGeometry([
    Part.LineSegment(V(120.5, 140.583635, 0), V(120.5, 124.583635, 0)),
    Part.LineSegment(V(120.5, 124.583635, 0), V(79.5, 124.583635, 0)),
    Part.LineSegment(V(79.5, 124.583635, 0), V(79.5, 140.583635, 0)),
    Part.LineSegment(V(79.5, 140.583635, 0), V(120.5, 140.583635, 0)),
], False)
sketch13.addConstraint([
    Sketcher.Constraint("Coincident", 0, 2, 1, 1),
    Sketcher.Constraint("Coincident", 1, 2, 2, 1),
    Sketcher.Constraint("Coincident", 2, 2, 3, 1),
    Sketcher.Constraint("Coincident", 3, 2, 0, 1),
    Sketcher.Constraint("Vertical", 0),
    Sketcher.Constraint("Horizontal", 1),
    Sketcher.Constraint("Vertical", 2),
    Sketcher.Constraint("Horizontal", 3),
    Sketcher.Constraint("DistanceX", 1, 2, 1, 1, 41.0),
    Sketcher.Constraint("DistanceY", 0, 2, 0, 1, 16.0),
    Sketcher.Constraint("DistanceX", -1, 1, 0, 2, 120.5),
    Sketcher.Constraint("DistanceY", -1, 1, 0, 2, 124.583635),
])
pocket12 = body.newObject("PartDesign::Pocket", "Pocket011")
pocket12.Profile = sketch13
pocket12.Length = 3
pocket12.Reversed = True

sketch14 = body.newObject("Sketcher::SketchObject", "Sketch013")
sketch14.AttachmentSupport = (doc.getObject("XY_Plane"), [""])
sketch14.MapMode = "FlatFace"
sketch14.AttachmentOffset = App.Placement(V(0, 0, 3), App.Rotation())
sketch14.addGeometry([
    Part.Circle(V(84, 136.083635, 0), V(0, 0, 1), 2.45),
    Part.Circle(V(116, 129.083635, 0), V(0, 0, 1), 2.45),
], False)
sketch14.addConstraint([
    Sketcher.Constraint("Equal", 0, 1),
    Sketcher.Constraint("Diameter", 0, 4.9),
    Sketcher.Constraint("DistanceX", -1, 1, 0, 3, 84.0),
    Sketcher.Constraint("DistanceX", -1, 1, 1, 3, 116.0),
    Sketcher.Constraint("DistanceY", 1, 3, 0, 3, 7.0),
    Sketcher.Constraint("DistanceY", -1, 1, 0, 3, 136.083635),
])
pocket13 = body.newObject("PartDesign::Pocket", "Pocket012")
pocket13.Profile = sketch14
pocket13.Length = 6
pocket13.Reversed = True

sketch15 = body.newObject("Sketcher::SketchObject", "Sketch014")
sketch15.AttachmentSupport = (doc.getObject("XY_Plane"), [""])
sketch15.MapMode = "FlatFace"
sketch15.AttachmentOffset = App.Placement(V(0, 0, 25), App.Rotation())
sketch15.addGeometry([
    Part.LineSegment(V(27.460586, 155, 0), V(27.460586, 108, 0)),
    Part.LineSegment(V(27.460586, 108, 0), V(51.460586, 108, 0)),
    Part.LineSegment(V(51.460586, 108, 0), V(51.460586, 155, 0)),
    Part.LineSegment(V(51.460586, 155, 0), V(27.460586, 155, 0)),
    Part.LineSegment(V(1.460586, 155, 0), V(1.460586, 108, 0)),
    Part.LineSegment(V(1.460586, 108, 0), V(25.460586, 108, 0)),
    Part.LineSegment(V(25.460586, 108, 0), V(25.460586, 155, 0)),
    Part.LineSegment(V(25.460586, 155, 0), V(1.460586, 155, 0)),
], False)
sketch15.addConstraint([
    Sketcher.Constraint("Coincident", 0, 2, 1, 1),
    Sketcher.Constraint("Coincident", 1, 2, 2, 1),
    Sketcher.Constraint("Coincident", 2, 2, 3, 1),
    Sketcher.Constraint("Coincident", 3, 2, 0, 1),
    Sketcher.Constraint("Coincident", 4, 2, 5, 1),
    Sketcher.Constraint("Coincident", 5, 2, 6, 1),
    Sketcher.Constraint("Coincident", 6, 2, 7, 1),
    Sketcher.Constraint("Coincident", 7, 2, 4, 1),
    Sketcher.Constraint("Vertical", 0),
    Sketcher.Constraint("Horizontal", 1),
    Sketcher.Constraint("Vertical", 2),
    Sketcher.Constraint("Horizontal", 3),
    Sketcher.Constraint("Vertical", 4),
    Sketcher.Constraint("Horizontal", 5),
    Sketcher.Constraint("Vertical", 6),
    Sketcher.Constraint("Horizontal", 7),
    Sketcher.Constraint("Horizontal", 1, 2, 4, 2),
    Sketcher.Constraint("Horizontal", 3, 2, 6, 2),
    Sketcher.Constraint("Equal", 3, 5),
    Sketcher.Constraint("DistanceX", 1, 1, 1, 2, 24.0),
    Sketcher.Constraint("DistanceY", 0, 2, 0, 1, 47.0),
    Sketcher.Constraint("DistanceY", -1, 1, 0, 2, 108.0),
    Sketcher.Constraint("DistanceX", 4, 2, 0, 2, 26.0),
    Sketcher.Constraint("DistanceX", -1, 1, 0, 2, 27.460586),
])
pocket14 = body.newObject("PartDesign::Pocket", "Pocket013")
pocket14.Profile = sketch15
pocket14.Length = 15

sketch16 = body.newObject("Sketcher::SketchObject", "Sketch015")
sketch16.AttachmentSupport = (doc.getObject("XY_Plane"), [""])
sketch16.MapMode = "FlatFace"
sketch16.AttachmentOffset = App.Placement(V(0, 0, 10), App.Rotation())
sketch16.addGeometry([
    Part.Circle(V(31.480586, 116.55, 0), V(0, 0, 1), 1.65),
    Part.Circle(V(47.622063, 147.57806, 0), V(0, 0, 1), 1.65),
    Part.Circle(V(21.622063, 147.57806, 0), V(0, 0, 1), 1.65),
    Part.Circle(V(5.480586, 116.55, 0), V(0, 0, 1), 1.65),
], False)
sketch16.addConstraint([
    Sketcher.Constraint("Equal", 0, 1),
    Sketcher.Constraint("Equal", 1, 2),
    Sketcher.Constraint("Equal", 2, 3),
    Sketcher.Constraint("Horizontal", 1, 3, 2, 3),
    Sketcher.Constraint("Horizontal", 0, 3, 3, 3),
    Sketcher.Constraint("Diameter", 0, 3.3),
    Sketcher.Constraint("DistanceX", 2, 3, 1, 3, 26.0),
    Sketcher.Constraint("DistanceX", 3, 3, 0, 3, 26.0),
    Sketcher.Constraint("DistanceY", -1, 1, 0, 3, 116.55),
    Sketcher.Constraint("DistanceY", -1, 1, 1, 3, 147.57806),
    Sketcher.Constraint("DistanceX", -1, 1, 0, 3, 31.480586),
    Sketcher.Constraint("DistanceX", -1, 1, 1, 3, 47.622063),
])
pocket15 = body.newObject("PartDesign::Pocket", "Pocket014")
pocket15.Profile = sketch16
pocket15.Length = 4

sketch17 = body.newObject("Sketcher::SketchObject", "Sketch016")
sketch17.AttachmentSupport = (doc.getObject("XY_Plane"), [""])
sketch17.MapMode = "FlatFace"
sketch17.AttachmentOffset = App.Placement(V(0, 0, 25), App.Rotation())
sketch17.addGeometry([
    Part.LineSegment(V(87.483728, 196, 0), V(87.483728, 199, 0)),
    Part.LineSegment(V(87.483728, 199, 0), V(66.983728, 199, 0)),
    Part.LineSegment(V(66.983728, 199, 0), V(66.983728, 196, 0)),
    Part.LineSegment(V(66.983728, 196, 0), V(63.233728, 196, 0)),
    Part.LineSegment(V(63.233728, 196, 0), V(63.233728, 107, 0)),
    Part.LineSegment(V(63.233728, 107, 0), V(0, 107, 0)),
    Part.LineSegment(V(0, 107, 0), V(0, 102, 0)),
    Part.LineSegment(V(0, 102, 0), V(73.233728, 102, 0)),
    Part.LineSegment(V(73.233728, 102, 0), V(73.233728, 175.607695, 0)),
    Part.LineSegment(V(73.233728, 175.607695, 0), V(91.233728, 186, 0)),
    Part.LineSegment(V(91.233728, 186, 0), V(91.233728, 196, 0)),
    Part.LineSegment(V(91.233728, 196, 0), V(87.483728, 196, 0)),
], False)
sketch17.addConstraint([
    Sketcher.Constraint("Coincident", 0, 2, 1, 1),
    Sketcher.Constraint("Coincident", 1, 2, 2, 1),
    Sketcher.Constraint("Coincident", 2, 2, 3, 1),
    Sketcher.Constraint("Coincident", 3, 2, 4, 1),
    Sketcher.Constraint("Coincident", 4, 2, 5, 1),
    Sketcher.Constraint("Coincident", 5, 2, 6, 1),
    Sketcher.Constraint("Coincident", 6, 2, 7, 1),
    Sketcher.Constraint("Coincident", 7, 2, 8, 1),
    Sketcher.Constraint("Coincident", 8, 2, 9, 1),
    Sketcher.Constraint("Coincident", 9, 2, 10, 1),
    Sketcher.Constraint("Coincident", 10, 2, 11, 1),
    Sketcher.Constraint("Coincident", 11, 2, 0, 1),
    Sketcher.Constraint("Vertical", 0),
    Sketcher.Constraint("Horizontal", 1),
    Sketcher.Constraint("Vertical", 2),
    Sketcher.Constraint("Horizontal", 3),
    Sketcher.Constraint("Vertical", 4),
    Sketcher.Constraint("Horizontal", 5),
    Sketcher.Constraint("Vertical", 6),
    Sketcher.Constraint("Horizontal", 7),
    Sketcher.Constraint("Vertical", 8),
    Sketcher.Constraint("Vertical", 10),
    Sketcher.Constraint("Horizontal", 11),
    Sketcher.Constraint("PointOnObject", 5, 2, -2),
    Sketcher.Constraint("Horizontal", 3, 2, 10, 2),
    Sketcher.Constraint("Equal", 3, 11),
    Sketcher.Constraint("DistanceY", 0, 1, 0, 2, 3.0),
    Sketcher.Constraint("DistanceY", 4, 2, 4, 1, 89.0),
    Sketcher.Constraint("DistanceY", 6, 2, 6, 1, 5.0),
    Sketcher.Constraint("DistanceY", 10, 1, 10, 2, 10.0),
    Sketcher.Constraint("Angle", 9, Q("30 deg")),
    Sketcher.Constraint("DistanceX", 1, 2, 1, 1, 20.5),
    Sketcher.Constraint("DistanceY", -1, 1, 0, 2, 199.0),
    Sketcher.Constraint("DistanceX", 4, 2, 7, 2, 10.0),
    Sketcher.Constraint("DistanceX", 8, 2, 9, 2, 18.0),
    Sketcher.Constraint("DistanceX", 5, 2, 5, 1, 63.233728),
])
pocket16 = body.newObject("PartDesign::Pocket", "Pocket015")
pocket16.Profile = sketch17
pocket16.Length = 15

sketch18 = body.newObject("Sketcher::SketchObject", "Sketch017")
sketch18.AttachmentSupport = (doc.getObject("XZ_Plane"), [""])
sketch18.MapMode = "FlatFace"
sketch18.AttachmentOffset = App.Placement(V(0, 0, -200), App.Rotation())
sketch18.addGeometry([
    Part.LineSegment(V(66.983728, 11, 0), V(66.983728, 20, 0)),
    Part.LineSegment(V(66.983728, 20, 0), V(87.483728, 20, 0)),
    Part.LineSegment(V(87.483728, 20, 0), V(87.483728, 11, 0)),
    Part.LineSegment(V(87.483728, 11, 0), V(66.983728, 11, 0)),
], False)
sketch18.addConstraint([
    Sketcher.Constraint("Coincident", 0, 2, 1, 1),
    Sketcher.Constraint("Coincident", 1, 2, 2, 1),
    Sketcher.Constraint("Coincident", 2, 2, 3, 1),
    Sketcher.Constraint("Coincident", 3, 2, 0, 1),
    Sketcher.Constraint("Vertical", 0),
    Sketcher.Constraint("Horizontal", 1),
    Sketcher.Constraint("Vertical", 2),
    Sketcher.Constraint("Horizontal", 3),
    Sketcher.Constraint("DistanceY", 0, 1, 0, 2, 9.0),
    Sketcher.Constraint("DistanceX", 1, 1, 1, 2, 20.5),
    Sketcher.Constraint("DistanceY", -1, 1, 0, 2, 20.0),
    Sketcher.Constraint("DistanceX", -1, 1, 0, 2, 66.983728),
])
pocket17 = body.newObject("PartDesign::Pocket", "Pocket016")
pocket17.Profile = sketch18
pocket17.Length = 2
pocket17.Reversed = True

sketch19 = body.newObject("Sketcher::SketchObject", "Sketch018")
sketch19.AttachmentSupport = (doc.getObject("XY_Plane"), [""])
sketch19.MapMode = "FlatFace"
sketch19.AttachmentOffset = App.Placement(V(0, 0, 10), App.Rotation())
sketch19.addGeometry(Part.Circle(V(76.401173, 183, 0), V(0, 0, 1), 1.45), False)
sketch19.addConstraint([
    Sketcher.Constraint("Diameter", 0, 2.9),
    Sketcher.Constraint("DistanceY", -1, 1, 0, 3, 183.0),
    Sketcher.Constraint("DistanceX", -1, 1, 0, 3, 76.401173),
])
pocket18 = body.newObject("PartDesign::Pocket", "Pocket017")
pocket18.Profile = sketch19
pocket18.Length = 6

sketch20 = body.newObject("Sketcher::SketchObject", "Sketch019")
sketch20.AttachmentSupport = (doc.getObject("XY_Plane"), [""])
sketch20.MapMode = "FlatFace"
sketch20.AttachmentOffset = App.Placement(V(0, 0, 10), App.Rotation())
sketch20.addGeometry([
    Part.LineSegment(V(63.233728, 161.361737, 0), V(63.233728, 141.361737, 0)),
    Part.LineSegment(V(63.233728, 141.361737, 0), V(73.233728, 141.361737, 0)),
    Part.LineSegment(V(73.233728, 141.361737, 0), V(73.233728, 161.361737, 0)),
    Part.LineSegment(V(73.233728, 161.361737, 0), V(63.233728, 161.361737, 0)),
], False)
sketch20.addConstraint([
    Sketcher.Constraint("Coincident", 0, 2, 1, 1),
    Sketcher.Constraint("Coincident", 1, 2, 2, 1),
    Sketcher.Constraint("Coincident", 2, 2, 3, 1),
    Sketcher.Constraint("Coincident", 3, 2, 0, 1),
    Sketcher.Constraint("Vertical", 0),
    Sketcher.Constraint("Horizontal", 1),
    Sketcher.Constraint("Vertical", 2),
    Sketcher.Constraint("Horizontal", 3),
    Sketcher.Constraint("DistanceX", 1, 1, 1, 2, 10.0),
    Sketcher.Constraint("DistanceY", 0, 2, 0, 1, 20.0),
    Sketcher.Constraint("DistanceX", -1, 1, 0, 2, 63.233728),
    Sketcher.Constraint("DistanceY", -1, 1, 0, 2, 141.361737),
])
pocket19 = body.newObject("PartDesign::Pocket", "Pocket018")
pocket19.Profile = sketch20
pocket19.Type = "ThroughAll"
pocket19.Midplane = True

doc.recompute()
